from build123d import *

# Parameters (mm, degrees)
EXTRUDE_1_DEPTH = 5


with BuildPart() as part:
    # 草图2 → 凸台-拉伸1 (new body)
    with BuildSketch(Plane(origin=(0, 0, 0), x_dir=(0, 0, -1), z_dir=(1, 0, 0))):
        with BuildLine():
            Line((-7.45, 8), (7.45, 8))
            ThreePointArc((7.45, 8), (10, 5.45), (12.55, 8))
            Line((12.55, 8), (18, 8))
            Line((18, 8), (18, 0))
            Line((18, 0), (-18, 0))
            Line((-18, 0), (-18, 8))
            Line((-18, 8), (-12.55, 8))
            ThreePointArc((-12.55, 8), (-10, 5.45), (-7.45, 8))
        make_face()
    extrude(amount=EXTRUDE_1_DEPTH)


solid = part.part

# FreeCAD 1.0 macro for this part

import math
import FreeCAD as App
import Part
import Sketcher

V = App.Vector
Q = App.Units.Quantity

doc = App.newDocument("Part")
body = doc.addObject("PartDesign::Body", "Body")

sketch1 = body.newObject("Sketcher::SketchObject", "Sketch")
sketch1.AttachmentSupport = (doc.getObject("YZ_Plane"), [""])
sketch1.MapMode = "FlatFace"
sketch1.addGeometry([
    Part.LineSegment(V(8, -7.5, 0), V(8, 7.5, 0)),
    Part.ArcOfCircle(Part.Circle(V(8, 10, 0), V(0, 0, 1), 2.5), math.radians(90), math.radians(270)),
    Part.LineSegment(V(8, 12.6, 0), V(8, 18, 0)),
    Part.LineSegment(V(8, 18, 0), V(0, 18, 0)),
    Part.LineSegment(V(0, 18, 0), V(0, -18, 0)),
    Part.LineSegment(V(0, -18, 0), V(8, -18, 0)),
    Part.LineSegment(V(8, -18, 0), V(8, -12.6, 0)),
    Part.ArcOfCircle(Part.Circle(V(8, -10, 0), V(0, 0, 1), 2.5), math.radians(90), math.radians(270)),
], False)
sketch1.addConstraint([
    Sketcher.Constraint("Coincident", 0, 2, 1, 2),
    Sketcher.Constraint("Coincident", 1, 1, 2, 1),
    Sketcher.Constraint("Coincident", 2, 2, 3, 1),
    Sketcher.Constraint("Coincident", 3, 2, 4, 1),
    Sketcher.Constraint("Coincident", 4, 2, 5, 1),
    Sketcher.Constraint("Coincident", 5, 2, 6, 1),
    Sketcher.Constraint("Coincident", 6, 2, 7, 2),
    Sketcher.Constraint("Coincident", 7, 1, 0, 1),
    Sketcher.Constraint("Vertical", 0),
    Sketcher.Constraint("Vertical", 2),
    Sketcher.Constraint("Horizontal", 3),
    Sketcher.Constraint("Vertical", 4),
    Sketcher.Constraint("Horizontal", 5),
    Sketcher.Constraint("Vertical", 6),
    Sketcher.Constraint("Equal", 1, 7),
    Sketcher.Constraint("Symmetric", 3, 2, 4, 2, -1, 1),
    Sketcher.Constraint("Symmetric", 1, 3, 7, 3, -1),
    Sketcher.Constraint("Vertical", 7, 3, 0, 2),
    Sketcher.Constraint("Vertical", 0, 2, 1, 1),
    Sketcher.Constraint("Vertical", 2, 2, 5, 2),
    Sketcher.Constraint("DistanceX", 3, 2, 3, 1, Q("8 mm")),
    Sketcher.Constraint("DistanceY", 4, 2, 4, 1, Q("36 mm")),
    Sketcher.Constraint("Radius", 1, Q("2.55 mm")),
    Sketcher.Constraint("DistanceY", 0, 1, 0, 2, Q("14.9 mm")),
])
pad1 = body.newObject("PartDesign::Pad", "Pad")
pad1.Profile = sketch1
pad1.Length = 5

doc.recompute()
